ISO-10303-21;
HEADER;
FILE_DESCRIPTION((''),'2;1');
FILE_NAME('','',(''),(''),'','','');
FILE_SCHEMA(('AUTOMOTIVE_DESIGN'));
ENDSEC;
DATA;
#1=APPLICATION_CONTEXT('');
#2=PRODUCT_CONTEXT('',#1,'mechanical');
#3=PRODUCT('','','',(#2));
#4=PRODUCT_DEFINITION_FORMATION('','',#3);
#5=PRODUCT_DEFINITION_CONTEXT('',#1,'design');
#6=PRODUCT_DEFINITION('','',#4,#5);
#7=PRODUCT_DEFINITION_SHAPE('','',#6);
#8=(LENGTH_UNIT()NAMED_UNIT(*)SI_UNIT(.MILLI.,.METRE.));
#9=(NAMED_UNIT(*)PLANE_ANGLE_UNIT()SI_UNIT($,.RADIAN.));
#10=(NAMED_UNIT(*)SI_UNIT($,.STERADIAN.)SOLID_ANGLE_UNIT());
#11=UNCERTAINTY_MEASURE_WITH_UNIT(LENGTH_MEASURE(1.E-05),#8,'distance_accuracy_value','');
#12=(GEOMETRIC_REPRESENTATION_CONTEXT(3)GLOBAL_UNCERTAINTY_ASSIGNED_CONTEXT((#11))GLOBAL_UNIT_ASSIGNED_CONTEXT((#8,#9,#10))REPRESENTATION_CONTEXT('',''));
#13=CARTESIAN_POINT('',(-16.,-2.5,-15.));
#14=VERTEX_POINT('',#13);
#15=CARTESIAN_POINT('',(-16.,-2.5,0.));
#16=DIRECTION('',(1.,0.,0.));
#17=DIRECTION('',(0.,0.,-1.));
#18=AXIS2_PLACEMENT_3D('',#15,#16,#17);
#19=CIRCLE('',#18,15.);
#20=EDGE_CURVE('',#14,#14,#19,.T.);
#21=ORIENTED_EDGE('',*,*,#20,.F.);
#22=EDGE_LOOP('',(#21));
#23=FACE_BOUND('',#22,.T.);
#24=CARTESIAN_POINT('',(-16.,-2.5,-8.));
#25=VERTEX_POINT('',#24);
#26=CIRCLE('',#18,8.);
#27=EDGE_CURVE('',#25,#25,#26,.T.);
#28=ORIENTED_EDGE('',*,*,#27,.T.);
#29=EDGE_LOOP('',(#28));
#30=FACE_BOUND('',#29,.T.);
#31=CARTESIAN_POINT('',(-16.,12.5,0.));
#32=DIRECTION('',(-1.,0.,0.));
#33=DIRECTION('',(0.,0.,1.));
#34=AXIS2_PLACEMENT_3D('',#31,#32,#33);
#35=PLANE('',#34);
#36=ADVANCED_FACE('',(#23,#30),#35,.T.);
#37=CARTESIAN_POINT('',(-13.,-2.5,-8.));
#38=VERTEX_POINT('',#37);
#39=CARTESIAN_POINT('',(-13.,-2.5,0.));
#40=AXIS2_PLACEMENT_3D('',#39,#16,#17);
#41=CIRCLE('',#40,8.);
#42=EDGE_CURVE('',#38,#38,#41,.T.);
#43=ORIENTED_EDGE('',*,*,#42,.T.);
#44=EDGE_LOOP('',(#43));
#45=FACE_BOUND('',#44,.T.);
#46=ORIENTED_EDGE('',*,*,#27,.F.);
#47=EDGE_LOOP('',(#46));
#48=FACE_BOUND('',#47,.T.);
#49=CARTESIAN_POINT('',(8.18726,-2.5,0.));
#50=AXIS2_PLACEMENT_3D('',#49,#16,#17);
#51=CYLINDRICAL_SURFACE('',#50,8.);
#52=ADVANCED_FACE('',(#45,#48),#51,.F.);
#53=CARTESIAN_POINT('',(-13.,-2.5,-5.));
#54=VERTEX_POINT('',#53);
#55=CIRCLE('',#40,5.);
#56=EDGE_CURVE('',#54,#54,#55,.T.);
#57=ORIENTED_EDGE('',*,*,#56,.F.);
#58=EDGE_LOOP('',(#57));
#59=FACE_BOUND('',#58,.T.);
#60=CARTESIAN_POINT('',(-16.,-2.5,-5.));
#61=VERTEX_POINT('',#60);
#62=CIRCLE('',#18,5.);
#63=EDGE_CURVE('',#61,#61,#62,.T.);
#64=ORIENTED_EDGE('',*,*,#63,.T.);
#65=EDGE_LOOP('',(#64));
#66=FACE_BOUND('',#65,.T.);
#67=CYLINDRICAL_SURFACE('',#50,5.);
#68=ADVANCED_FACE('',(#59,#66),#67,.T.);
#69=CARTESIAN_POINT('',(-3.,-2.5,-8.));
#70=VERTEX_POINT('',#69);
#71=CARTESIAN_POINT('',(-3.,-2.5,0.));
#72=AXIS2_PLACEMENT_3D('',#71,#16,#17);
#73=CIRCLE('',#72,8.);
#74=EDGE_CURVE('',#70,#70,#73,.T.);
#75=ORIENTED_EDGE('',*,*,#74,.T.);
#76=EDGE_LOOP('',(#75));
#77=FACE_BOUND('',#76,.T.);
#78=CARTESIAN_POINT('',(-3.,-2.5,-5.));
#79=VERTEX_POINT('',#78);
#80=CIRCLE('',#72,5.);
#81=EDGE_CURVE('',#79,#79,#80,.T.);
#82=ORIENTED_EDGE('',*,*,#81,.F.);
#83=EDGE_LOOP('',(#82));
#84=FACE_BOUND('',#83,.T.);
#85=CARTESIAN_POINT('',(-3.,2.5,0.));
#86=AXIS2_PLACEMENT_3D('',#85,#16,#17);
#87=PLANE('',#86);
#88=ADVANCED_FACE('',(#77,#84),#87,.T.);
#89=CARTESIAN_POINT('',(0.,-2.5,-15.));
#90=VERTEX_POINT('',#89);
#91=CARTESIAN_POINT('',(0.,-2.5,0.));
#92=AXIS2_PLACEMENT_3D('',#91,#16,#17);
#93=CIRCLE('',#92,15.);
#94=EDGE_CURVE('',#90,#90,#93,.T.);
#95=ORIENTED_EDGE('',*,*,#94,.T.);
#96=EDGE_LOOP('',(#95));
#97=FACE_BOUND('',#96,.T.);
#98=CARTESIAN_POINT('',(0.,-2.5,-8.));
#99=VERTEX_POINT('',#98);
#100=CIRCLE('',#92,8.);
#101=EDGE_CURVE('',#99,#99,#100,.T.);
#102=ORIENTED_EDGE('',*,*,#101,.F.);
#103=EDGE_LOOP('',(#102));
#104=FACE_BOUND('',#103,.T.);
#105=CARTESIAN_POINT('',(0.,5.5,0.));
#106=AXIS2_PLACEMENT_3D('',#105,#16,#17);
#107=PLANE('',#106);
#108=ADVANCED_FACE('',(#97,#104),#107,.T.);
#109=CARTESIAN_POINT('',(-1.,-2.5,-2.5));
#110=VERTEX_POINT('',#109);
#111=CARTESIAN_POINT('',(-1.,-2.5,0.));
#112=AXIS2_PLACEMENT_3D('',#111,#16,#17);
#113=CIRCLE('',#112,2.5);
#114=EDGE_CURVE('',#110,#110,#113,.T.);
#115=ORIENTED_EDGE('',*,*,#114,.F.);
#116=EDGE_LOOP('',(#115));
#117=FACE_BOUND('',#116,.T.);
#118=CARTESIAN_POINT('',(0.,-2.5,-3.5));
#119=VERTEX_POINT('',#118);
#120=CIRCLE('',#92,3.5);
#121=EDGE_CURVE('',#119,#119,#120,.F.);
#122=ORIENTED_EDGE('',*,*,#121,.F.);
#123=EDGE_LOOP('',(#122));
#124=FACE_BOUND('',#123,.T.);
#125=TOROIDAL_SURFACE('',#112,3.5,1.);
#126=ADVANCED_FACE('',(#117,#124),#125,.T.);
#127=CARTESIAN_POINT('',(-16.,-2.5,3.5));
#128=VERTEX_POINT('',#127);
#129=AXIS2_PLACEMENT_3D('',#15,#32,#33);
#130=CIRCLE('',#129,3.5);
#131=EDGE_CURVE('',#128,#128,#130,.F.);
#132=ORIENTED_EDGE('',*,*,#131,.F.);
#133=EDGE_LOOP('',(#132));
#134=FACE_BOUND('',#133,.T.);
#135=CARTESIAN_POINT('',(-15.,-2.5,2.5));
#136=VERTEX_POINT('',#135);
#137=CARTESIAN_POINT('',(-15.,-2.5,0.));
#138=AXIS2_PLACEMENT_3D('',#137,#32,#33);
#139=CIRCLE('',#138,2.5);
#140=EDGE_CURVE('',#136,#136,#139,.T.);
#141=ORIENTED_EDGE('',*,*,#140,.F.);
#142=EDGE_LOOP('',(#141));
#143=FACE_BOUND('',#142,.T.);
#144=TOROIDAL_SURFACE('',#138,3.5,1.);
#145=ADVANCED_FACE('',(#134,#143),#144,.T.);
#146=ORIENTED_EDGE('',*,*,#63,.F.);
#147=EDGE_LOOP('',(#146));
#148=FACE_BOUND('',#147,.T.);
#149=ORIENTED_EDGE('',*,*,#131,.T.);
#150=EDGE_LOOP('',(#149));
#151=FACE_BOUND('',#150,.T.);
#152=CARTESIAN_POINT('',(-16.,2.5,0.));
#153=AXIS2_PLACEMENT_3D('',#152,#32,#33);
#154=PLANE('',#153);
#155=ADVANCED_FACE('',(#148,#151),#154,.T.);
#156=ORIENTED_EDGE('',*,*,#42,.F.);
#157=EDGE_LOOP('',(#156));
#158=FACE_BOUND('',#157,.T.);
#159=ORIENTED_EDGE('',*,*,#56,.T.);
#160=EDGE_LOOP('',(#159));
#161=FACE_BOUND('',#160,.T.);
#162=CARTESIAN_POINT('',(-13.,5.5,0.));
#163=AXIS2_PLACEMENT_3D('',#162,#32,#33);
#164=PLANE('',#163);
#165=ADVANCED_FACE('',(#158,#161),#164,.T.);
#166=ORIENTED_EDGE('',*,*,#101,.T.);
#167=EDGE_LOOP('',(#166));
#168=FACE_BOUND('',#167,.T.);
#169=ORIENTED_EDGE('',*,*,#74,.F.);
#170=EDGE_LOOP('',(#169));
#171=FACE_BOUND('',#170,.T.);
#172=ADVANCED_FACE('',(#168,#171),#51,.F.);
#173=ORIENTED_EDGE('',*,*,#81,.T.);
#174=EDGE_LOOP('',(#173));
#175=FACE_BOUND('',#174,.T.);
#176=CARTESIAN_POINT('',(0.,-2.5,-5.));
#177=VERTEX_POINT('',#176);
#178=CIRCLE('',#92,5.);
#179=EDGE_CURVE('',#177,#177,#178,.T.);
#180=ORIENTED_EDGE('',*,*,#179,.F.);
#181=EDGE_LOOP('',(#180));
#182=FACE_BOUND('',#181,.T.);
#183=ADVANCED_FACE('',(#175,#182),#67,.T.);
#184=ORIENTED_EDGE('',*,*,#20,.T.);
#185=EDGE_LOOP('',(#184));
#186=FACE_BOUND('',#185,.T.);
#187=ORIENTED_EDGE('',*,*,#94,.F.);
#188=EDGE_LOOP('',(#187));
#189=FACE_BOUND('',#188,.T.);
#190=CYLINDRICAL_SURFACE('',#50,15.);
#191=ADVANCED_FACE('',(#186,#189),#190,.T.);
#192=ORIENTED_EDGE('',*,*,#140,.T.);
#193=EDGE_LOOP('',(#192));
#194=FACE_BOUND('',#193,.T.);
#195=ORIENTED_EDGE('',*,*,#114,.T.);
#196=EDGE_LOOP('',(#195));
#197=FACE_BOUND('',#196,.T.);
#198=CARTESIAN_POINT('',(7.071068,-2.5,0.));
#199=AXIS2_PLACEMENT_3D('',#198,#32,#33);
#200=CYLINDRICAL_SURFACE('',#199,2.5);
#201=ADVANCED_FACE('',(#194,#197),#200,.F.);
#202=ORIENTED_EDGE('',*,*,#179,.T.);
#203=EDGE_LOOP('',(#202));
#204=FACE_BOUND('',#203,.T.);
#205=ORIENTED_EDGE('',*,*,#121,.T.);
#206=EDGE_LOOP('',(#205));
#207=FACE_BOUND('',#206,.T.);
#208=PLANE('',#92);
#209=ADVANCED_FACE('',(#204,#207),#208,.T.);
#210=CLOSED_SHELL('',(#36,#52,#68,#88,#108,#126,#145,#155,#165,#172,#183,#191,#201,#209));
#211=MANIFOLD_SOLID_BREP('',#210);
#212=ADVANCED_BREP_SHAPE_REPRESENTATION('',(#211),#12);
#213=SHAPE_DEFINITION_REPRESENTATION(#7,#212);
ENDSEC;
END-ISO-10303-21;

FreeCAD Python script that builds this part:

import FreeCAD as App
import Part
import Sketcher


def edges_at(feature, points):
    """Names of the edges that pass closest to the given points."""
    edges = feature.Shape.Edges
    near = lambda p: min(range(len(edges)), key=lambda i: edges[i].distToShape(Part.Vertex(*p))[0])
    return sorted({f"Edge{near(p) + 1}" for p in points})

doc = App.newDocument("Part")
body = doc.addObject("PartDesign::Body", "Body")

sketch1 = body.newObject("Sketcher::SketchObject", "Sketch")
sketch1.AttachmentSupport = (doc.getObject("XY_Plane"), [""])
sketch1.MapMode = "FlatFace"
sketch1.addGeometry([
    Part.LineSegment(App.Vector(0, 2.5, 0), App.Vector(-3, 2.5, 0)),
    Part.LineSegment(App.Vector(-3, 2.5, 0), App.Vector(-3, 5.5, 0)),
    Part.LineSegment(App.Vector(-3, 5.5, 0), App.Vector(0, 5.5, 0)),
    Part.LineSegment(App.Vector(0, 5.5, 0), App.Vector(0, 12.5, 0)),
    Part.LineSegment(App.Vector(0, 12.5, 0), App.Vector(-16, 12.5, 0)),
    Part.LineSegment(App.Vector(-16, 12.5, 0), App.Vector(-16, 5.5, 0)),
    Part.LineSegment(App.Vector(-16, 5.5, 0), App.Vector(-13, 5.5, 0)),
    Part.LineSegment(App.Vector(-13, 5.5, 0), App.Vector(-13, 2.5, 0)),
    Part.LineSegment(App.Vector(-13, 2.5, 0), App.Vector(-16, 2.5, 0)),
    Part.LineSegment(App.Vector(-16, 2.5, 0), App.Vector(-16, -2.5, 0)),
    Part.LineSegment(App.Vector(-16, -2.5, 0), App.Vector(0, -2.5, 0)),
    Part.LineSegment(App.Vector(0, -2.5, 0), App.Vector(0, 2.5, 0)),
], False)
sketch1.addGeometry(Part.LineSegment(App.Vector(0, -2.5, 0), App.Vector(-16, -2.5, 0)), True)
sketch1.addConstraint([
    Sketcher.Constraint("Coincident", 0, 2, 1, 1),
    Sketcher.Constraint("Coincident", 1, 2, 2, 1),
    Sketcher.Constraint("Coincident", 2, 2, 3, 1),
    Sketcher.Constraint("Coincident", 3, 2, 4, 1),
    Sketcher.Constraint("Coincident", 4, 2, 5, 1),
    Sketcher.Constraint("Coincident", 5, 2, 6, 1),
    Sketcher.Constraint("Coincident", 6, 2, 7, 1),
    Sketcher.Constraint("Coincident", 7, 2, 8, 1),
    Sketcher.Constraint("Coincident", 8, 2, 9, 1),
    Sketcher.Constraint("Coincident", 9, 2, 10, 1),
    Sketcher.Constraint("Coincident", 10, 2, 11, 1),
    Sketcher.Constraint("Coincident", 11, 2, 0, 1),
    Sketcher.Constraint("Horizontal", 0),
    Sketcher.Constraint("Vertical", 1),
    Sketcher.Constraint("Horizontal", 2),
    Sketcher.Constraint("Vertical", 3),
    Sketcher.Constraint("Horizontal", 4),
    Sketcher.Constraint("Vertical", 5),
    Sketcher.Constraint("Horizontal", 6),
    Sketcher.Constraint("Vertical", 7),
    Sketcher.Constraint("Horizontal", 8),
    Sketcher.Constraint("Vertical", 9),
    Sketcher.Constraint("Horizontal", 10),
    Sketcher.Constraint("Vertical", 11),
    Sketcher.Constraint("Horizontal", 12),
    Sketcher.Constraint("Coincident", 12, 1, 10, 2),
    Sketcher.Constraint("Symmetric", 10, 2, 11, 2, -1, 1),
    Sketcher.Constraint("Symmetric", 8, 2, 12, 2, -1),
    Sketcher.Constraint("PointOnObject", 2, 2, -2),
    Sketcher.Constraint("Horizontal", 2, 2, 5, 2),
    Sketcher.Constraint("Vertical", 5, 2, 8, 2),
    Sketcher.Constraint("Equal", 2, 6),
    Sketcher.Constraint("Equal", 8, 1),
    Sketcher.Constraint("DistanceX", 0, 2, 0, 1, 3.0),
    Sketcher.Constraint("DistanceX", 4, 2, 4, 1, 16.0),
    Sketcher.Constraint("DistanceY", 3, 1, 3, 2, 7.0),
    Sketcher.Constraint("DistanceY", 9, 2, 9, 1, 5.0),
])
revolution = body.newObject("PartDesign::Revolution", "Revolution")
revolution.Profile = sketch1
revolution.ReferenceAxis = (sketch1, ["Axis0"])
revolution.Angle = 360

sketch2 = body.newObject("Sketcher::SketchObject", "Sketch001")
sketch2.AttachmentSupport = (doc.getObject("YZ_Plane"), [""])
sketch2.MapMode = "FlatFace"
sketch2.AttachmentOffset = App.Placement(App.Vector(0, 0, -16), App.Rotation())
sketch2.addGeometry(Part.Circle(App.Vector(-2.5, 0, 0), App.Vector(0, 0, 1), 2.5), False)
sketch2.addConstraint([
    Sketcher.Constraint("PointOnObject", 0, 3, -1),
    Sketcher.Constraint("Diameter", 0, 5.0),
    Sketcher.Constraint("DistanceX", 0, 3, -1, 1, 2.5),
])
pocket1 = body.newObject("PartDesign::Pocket", "Pocket")
pocket1.Profile = sketch2
pocket1.Length = 16
pocket1.Reversed = True
doc.recompute()

fillet = body.newObject("PartDesign::Fillet", "Fillet")
fillet.Base = (pocket1, edges_at(pocket1, [(-16, -2.5, -2.5), (0, -2.5, -2.5)]))
fillet.Radius = 1

doc.recompute()
